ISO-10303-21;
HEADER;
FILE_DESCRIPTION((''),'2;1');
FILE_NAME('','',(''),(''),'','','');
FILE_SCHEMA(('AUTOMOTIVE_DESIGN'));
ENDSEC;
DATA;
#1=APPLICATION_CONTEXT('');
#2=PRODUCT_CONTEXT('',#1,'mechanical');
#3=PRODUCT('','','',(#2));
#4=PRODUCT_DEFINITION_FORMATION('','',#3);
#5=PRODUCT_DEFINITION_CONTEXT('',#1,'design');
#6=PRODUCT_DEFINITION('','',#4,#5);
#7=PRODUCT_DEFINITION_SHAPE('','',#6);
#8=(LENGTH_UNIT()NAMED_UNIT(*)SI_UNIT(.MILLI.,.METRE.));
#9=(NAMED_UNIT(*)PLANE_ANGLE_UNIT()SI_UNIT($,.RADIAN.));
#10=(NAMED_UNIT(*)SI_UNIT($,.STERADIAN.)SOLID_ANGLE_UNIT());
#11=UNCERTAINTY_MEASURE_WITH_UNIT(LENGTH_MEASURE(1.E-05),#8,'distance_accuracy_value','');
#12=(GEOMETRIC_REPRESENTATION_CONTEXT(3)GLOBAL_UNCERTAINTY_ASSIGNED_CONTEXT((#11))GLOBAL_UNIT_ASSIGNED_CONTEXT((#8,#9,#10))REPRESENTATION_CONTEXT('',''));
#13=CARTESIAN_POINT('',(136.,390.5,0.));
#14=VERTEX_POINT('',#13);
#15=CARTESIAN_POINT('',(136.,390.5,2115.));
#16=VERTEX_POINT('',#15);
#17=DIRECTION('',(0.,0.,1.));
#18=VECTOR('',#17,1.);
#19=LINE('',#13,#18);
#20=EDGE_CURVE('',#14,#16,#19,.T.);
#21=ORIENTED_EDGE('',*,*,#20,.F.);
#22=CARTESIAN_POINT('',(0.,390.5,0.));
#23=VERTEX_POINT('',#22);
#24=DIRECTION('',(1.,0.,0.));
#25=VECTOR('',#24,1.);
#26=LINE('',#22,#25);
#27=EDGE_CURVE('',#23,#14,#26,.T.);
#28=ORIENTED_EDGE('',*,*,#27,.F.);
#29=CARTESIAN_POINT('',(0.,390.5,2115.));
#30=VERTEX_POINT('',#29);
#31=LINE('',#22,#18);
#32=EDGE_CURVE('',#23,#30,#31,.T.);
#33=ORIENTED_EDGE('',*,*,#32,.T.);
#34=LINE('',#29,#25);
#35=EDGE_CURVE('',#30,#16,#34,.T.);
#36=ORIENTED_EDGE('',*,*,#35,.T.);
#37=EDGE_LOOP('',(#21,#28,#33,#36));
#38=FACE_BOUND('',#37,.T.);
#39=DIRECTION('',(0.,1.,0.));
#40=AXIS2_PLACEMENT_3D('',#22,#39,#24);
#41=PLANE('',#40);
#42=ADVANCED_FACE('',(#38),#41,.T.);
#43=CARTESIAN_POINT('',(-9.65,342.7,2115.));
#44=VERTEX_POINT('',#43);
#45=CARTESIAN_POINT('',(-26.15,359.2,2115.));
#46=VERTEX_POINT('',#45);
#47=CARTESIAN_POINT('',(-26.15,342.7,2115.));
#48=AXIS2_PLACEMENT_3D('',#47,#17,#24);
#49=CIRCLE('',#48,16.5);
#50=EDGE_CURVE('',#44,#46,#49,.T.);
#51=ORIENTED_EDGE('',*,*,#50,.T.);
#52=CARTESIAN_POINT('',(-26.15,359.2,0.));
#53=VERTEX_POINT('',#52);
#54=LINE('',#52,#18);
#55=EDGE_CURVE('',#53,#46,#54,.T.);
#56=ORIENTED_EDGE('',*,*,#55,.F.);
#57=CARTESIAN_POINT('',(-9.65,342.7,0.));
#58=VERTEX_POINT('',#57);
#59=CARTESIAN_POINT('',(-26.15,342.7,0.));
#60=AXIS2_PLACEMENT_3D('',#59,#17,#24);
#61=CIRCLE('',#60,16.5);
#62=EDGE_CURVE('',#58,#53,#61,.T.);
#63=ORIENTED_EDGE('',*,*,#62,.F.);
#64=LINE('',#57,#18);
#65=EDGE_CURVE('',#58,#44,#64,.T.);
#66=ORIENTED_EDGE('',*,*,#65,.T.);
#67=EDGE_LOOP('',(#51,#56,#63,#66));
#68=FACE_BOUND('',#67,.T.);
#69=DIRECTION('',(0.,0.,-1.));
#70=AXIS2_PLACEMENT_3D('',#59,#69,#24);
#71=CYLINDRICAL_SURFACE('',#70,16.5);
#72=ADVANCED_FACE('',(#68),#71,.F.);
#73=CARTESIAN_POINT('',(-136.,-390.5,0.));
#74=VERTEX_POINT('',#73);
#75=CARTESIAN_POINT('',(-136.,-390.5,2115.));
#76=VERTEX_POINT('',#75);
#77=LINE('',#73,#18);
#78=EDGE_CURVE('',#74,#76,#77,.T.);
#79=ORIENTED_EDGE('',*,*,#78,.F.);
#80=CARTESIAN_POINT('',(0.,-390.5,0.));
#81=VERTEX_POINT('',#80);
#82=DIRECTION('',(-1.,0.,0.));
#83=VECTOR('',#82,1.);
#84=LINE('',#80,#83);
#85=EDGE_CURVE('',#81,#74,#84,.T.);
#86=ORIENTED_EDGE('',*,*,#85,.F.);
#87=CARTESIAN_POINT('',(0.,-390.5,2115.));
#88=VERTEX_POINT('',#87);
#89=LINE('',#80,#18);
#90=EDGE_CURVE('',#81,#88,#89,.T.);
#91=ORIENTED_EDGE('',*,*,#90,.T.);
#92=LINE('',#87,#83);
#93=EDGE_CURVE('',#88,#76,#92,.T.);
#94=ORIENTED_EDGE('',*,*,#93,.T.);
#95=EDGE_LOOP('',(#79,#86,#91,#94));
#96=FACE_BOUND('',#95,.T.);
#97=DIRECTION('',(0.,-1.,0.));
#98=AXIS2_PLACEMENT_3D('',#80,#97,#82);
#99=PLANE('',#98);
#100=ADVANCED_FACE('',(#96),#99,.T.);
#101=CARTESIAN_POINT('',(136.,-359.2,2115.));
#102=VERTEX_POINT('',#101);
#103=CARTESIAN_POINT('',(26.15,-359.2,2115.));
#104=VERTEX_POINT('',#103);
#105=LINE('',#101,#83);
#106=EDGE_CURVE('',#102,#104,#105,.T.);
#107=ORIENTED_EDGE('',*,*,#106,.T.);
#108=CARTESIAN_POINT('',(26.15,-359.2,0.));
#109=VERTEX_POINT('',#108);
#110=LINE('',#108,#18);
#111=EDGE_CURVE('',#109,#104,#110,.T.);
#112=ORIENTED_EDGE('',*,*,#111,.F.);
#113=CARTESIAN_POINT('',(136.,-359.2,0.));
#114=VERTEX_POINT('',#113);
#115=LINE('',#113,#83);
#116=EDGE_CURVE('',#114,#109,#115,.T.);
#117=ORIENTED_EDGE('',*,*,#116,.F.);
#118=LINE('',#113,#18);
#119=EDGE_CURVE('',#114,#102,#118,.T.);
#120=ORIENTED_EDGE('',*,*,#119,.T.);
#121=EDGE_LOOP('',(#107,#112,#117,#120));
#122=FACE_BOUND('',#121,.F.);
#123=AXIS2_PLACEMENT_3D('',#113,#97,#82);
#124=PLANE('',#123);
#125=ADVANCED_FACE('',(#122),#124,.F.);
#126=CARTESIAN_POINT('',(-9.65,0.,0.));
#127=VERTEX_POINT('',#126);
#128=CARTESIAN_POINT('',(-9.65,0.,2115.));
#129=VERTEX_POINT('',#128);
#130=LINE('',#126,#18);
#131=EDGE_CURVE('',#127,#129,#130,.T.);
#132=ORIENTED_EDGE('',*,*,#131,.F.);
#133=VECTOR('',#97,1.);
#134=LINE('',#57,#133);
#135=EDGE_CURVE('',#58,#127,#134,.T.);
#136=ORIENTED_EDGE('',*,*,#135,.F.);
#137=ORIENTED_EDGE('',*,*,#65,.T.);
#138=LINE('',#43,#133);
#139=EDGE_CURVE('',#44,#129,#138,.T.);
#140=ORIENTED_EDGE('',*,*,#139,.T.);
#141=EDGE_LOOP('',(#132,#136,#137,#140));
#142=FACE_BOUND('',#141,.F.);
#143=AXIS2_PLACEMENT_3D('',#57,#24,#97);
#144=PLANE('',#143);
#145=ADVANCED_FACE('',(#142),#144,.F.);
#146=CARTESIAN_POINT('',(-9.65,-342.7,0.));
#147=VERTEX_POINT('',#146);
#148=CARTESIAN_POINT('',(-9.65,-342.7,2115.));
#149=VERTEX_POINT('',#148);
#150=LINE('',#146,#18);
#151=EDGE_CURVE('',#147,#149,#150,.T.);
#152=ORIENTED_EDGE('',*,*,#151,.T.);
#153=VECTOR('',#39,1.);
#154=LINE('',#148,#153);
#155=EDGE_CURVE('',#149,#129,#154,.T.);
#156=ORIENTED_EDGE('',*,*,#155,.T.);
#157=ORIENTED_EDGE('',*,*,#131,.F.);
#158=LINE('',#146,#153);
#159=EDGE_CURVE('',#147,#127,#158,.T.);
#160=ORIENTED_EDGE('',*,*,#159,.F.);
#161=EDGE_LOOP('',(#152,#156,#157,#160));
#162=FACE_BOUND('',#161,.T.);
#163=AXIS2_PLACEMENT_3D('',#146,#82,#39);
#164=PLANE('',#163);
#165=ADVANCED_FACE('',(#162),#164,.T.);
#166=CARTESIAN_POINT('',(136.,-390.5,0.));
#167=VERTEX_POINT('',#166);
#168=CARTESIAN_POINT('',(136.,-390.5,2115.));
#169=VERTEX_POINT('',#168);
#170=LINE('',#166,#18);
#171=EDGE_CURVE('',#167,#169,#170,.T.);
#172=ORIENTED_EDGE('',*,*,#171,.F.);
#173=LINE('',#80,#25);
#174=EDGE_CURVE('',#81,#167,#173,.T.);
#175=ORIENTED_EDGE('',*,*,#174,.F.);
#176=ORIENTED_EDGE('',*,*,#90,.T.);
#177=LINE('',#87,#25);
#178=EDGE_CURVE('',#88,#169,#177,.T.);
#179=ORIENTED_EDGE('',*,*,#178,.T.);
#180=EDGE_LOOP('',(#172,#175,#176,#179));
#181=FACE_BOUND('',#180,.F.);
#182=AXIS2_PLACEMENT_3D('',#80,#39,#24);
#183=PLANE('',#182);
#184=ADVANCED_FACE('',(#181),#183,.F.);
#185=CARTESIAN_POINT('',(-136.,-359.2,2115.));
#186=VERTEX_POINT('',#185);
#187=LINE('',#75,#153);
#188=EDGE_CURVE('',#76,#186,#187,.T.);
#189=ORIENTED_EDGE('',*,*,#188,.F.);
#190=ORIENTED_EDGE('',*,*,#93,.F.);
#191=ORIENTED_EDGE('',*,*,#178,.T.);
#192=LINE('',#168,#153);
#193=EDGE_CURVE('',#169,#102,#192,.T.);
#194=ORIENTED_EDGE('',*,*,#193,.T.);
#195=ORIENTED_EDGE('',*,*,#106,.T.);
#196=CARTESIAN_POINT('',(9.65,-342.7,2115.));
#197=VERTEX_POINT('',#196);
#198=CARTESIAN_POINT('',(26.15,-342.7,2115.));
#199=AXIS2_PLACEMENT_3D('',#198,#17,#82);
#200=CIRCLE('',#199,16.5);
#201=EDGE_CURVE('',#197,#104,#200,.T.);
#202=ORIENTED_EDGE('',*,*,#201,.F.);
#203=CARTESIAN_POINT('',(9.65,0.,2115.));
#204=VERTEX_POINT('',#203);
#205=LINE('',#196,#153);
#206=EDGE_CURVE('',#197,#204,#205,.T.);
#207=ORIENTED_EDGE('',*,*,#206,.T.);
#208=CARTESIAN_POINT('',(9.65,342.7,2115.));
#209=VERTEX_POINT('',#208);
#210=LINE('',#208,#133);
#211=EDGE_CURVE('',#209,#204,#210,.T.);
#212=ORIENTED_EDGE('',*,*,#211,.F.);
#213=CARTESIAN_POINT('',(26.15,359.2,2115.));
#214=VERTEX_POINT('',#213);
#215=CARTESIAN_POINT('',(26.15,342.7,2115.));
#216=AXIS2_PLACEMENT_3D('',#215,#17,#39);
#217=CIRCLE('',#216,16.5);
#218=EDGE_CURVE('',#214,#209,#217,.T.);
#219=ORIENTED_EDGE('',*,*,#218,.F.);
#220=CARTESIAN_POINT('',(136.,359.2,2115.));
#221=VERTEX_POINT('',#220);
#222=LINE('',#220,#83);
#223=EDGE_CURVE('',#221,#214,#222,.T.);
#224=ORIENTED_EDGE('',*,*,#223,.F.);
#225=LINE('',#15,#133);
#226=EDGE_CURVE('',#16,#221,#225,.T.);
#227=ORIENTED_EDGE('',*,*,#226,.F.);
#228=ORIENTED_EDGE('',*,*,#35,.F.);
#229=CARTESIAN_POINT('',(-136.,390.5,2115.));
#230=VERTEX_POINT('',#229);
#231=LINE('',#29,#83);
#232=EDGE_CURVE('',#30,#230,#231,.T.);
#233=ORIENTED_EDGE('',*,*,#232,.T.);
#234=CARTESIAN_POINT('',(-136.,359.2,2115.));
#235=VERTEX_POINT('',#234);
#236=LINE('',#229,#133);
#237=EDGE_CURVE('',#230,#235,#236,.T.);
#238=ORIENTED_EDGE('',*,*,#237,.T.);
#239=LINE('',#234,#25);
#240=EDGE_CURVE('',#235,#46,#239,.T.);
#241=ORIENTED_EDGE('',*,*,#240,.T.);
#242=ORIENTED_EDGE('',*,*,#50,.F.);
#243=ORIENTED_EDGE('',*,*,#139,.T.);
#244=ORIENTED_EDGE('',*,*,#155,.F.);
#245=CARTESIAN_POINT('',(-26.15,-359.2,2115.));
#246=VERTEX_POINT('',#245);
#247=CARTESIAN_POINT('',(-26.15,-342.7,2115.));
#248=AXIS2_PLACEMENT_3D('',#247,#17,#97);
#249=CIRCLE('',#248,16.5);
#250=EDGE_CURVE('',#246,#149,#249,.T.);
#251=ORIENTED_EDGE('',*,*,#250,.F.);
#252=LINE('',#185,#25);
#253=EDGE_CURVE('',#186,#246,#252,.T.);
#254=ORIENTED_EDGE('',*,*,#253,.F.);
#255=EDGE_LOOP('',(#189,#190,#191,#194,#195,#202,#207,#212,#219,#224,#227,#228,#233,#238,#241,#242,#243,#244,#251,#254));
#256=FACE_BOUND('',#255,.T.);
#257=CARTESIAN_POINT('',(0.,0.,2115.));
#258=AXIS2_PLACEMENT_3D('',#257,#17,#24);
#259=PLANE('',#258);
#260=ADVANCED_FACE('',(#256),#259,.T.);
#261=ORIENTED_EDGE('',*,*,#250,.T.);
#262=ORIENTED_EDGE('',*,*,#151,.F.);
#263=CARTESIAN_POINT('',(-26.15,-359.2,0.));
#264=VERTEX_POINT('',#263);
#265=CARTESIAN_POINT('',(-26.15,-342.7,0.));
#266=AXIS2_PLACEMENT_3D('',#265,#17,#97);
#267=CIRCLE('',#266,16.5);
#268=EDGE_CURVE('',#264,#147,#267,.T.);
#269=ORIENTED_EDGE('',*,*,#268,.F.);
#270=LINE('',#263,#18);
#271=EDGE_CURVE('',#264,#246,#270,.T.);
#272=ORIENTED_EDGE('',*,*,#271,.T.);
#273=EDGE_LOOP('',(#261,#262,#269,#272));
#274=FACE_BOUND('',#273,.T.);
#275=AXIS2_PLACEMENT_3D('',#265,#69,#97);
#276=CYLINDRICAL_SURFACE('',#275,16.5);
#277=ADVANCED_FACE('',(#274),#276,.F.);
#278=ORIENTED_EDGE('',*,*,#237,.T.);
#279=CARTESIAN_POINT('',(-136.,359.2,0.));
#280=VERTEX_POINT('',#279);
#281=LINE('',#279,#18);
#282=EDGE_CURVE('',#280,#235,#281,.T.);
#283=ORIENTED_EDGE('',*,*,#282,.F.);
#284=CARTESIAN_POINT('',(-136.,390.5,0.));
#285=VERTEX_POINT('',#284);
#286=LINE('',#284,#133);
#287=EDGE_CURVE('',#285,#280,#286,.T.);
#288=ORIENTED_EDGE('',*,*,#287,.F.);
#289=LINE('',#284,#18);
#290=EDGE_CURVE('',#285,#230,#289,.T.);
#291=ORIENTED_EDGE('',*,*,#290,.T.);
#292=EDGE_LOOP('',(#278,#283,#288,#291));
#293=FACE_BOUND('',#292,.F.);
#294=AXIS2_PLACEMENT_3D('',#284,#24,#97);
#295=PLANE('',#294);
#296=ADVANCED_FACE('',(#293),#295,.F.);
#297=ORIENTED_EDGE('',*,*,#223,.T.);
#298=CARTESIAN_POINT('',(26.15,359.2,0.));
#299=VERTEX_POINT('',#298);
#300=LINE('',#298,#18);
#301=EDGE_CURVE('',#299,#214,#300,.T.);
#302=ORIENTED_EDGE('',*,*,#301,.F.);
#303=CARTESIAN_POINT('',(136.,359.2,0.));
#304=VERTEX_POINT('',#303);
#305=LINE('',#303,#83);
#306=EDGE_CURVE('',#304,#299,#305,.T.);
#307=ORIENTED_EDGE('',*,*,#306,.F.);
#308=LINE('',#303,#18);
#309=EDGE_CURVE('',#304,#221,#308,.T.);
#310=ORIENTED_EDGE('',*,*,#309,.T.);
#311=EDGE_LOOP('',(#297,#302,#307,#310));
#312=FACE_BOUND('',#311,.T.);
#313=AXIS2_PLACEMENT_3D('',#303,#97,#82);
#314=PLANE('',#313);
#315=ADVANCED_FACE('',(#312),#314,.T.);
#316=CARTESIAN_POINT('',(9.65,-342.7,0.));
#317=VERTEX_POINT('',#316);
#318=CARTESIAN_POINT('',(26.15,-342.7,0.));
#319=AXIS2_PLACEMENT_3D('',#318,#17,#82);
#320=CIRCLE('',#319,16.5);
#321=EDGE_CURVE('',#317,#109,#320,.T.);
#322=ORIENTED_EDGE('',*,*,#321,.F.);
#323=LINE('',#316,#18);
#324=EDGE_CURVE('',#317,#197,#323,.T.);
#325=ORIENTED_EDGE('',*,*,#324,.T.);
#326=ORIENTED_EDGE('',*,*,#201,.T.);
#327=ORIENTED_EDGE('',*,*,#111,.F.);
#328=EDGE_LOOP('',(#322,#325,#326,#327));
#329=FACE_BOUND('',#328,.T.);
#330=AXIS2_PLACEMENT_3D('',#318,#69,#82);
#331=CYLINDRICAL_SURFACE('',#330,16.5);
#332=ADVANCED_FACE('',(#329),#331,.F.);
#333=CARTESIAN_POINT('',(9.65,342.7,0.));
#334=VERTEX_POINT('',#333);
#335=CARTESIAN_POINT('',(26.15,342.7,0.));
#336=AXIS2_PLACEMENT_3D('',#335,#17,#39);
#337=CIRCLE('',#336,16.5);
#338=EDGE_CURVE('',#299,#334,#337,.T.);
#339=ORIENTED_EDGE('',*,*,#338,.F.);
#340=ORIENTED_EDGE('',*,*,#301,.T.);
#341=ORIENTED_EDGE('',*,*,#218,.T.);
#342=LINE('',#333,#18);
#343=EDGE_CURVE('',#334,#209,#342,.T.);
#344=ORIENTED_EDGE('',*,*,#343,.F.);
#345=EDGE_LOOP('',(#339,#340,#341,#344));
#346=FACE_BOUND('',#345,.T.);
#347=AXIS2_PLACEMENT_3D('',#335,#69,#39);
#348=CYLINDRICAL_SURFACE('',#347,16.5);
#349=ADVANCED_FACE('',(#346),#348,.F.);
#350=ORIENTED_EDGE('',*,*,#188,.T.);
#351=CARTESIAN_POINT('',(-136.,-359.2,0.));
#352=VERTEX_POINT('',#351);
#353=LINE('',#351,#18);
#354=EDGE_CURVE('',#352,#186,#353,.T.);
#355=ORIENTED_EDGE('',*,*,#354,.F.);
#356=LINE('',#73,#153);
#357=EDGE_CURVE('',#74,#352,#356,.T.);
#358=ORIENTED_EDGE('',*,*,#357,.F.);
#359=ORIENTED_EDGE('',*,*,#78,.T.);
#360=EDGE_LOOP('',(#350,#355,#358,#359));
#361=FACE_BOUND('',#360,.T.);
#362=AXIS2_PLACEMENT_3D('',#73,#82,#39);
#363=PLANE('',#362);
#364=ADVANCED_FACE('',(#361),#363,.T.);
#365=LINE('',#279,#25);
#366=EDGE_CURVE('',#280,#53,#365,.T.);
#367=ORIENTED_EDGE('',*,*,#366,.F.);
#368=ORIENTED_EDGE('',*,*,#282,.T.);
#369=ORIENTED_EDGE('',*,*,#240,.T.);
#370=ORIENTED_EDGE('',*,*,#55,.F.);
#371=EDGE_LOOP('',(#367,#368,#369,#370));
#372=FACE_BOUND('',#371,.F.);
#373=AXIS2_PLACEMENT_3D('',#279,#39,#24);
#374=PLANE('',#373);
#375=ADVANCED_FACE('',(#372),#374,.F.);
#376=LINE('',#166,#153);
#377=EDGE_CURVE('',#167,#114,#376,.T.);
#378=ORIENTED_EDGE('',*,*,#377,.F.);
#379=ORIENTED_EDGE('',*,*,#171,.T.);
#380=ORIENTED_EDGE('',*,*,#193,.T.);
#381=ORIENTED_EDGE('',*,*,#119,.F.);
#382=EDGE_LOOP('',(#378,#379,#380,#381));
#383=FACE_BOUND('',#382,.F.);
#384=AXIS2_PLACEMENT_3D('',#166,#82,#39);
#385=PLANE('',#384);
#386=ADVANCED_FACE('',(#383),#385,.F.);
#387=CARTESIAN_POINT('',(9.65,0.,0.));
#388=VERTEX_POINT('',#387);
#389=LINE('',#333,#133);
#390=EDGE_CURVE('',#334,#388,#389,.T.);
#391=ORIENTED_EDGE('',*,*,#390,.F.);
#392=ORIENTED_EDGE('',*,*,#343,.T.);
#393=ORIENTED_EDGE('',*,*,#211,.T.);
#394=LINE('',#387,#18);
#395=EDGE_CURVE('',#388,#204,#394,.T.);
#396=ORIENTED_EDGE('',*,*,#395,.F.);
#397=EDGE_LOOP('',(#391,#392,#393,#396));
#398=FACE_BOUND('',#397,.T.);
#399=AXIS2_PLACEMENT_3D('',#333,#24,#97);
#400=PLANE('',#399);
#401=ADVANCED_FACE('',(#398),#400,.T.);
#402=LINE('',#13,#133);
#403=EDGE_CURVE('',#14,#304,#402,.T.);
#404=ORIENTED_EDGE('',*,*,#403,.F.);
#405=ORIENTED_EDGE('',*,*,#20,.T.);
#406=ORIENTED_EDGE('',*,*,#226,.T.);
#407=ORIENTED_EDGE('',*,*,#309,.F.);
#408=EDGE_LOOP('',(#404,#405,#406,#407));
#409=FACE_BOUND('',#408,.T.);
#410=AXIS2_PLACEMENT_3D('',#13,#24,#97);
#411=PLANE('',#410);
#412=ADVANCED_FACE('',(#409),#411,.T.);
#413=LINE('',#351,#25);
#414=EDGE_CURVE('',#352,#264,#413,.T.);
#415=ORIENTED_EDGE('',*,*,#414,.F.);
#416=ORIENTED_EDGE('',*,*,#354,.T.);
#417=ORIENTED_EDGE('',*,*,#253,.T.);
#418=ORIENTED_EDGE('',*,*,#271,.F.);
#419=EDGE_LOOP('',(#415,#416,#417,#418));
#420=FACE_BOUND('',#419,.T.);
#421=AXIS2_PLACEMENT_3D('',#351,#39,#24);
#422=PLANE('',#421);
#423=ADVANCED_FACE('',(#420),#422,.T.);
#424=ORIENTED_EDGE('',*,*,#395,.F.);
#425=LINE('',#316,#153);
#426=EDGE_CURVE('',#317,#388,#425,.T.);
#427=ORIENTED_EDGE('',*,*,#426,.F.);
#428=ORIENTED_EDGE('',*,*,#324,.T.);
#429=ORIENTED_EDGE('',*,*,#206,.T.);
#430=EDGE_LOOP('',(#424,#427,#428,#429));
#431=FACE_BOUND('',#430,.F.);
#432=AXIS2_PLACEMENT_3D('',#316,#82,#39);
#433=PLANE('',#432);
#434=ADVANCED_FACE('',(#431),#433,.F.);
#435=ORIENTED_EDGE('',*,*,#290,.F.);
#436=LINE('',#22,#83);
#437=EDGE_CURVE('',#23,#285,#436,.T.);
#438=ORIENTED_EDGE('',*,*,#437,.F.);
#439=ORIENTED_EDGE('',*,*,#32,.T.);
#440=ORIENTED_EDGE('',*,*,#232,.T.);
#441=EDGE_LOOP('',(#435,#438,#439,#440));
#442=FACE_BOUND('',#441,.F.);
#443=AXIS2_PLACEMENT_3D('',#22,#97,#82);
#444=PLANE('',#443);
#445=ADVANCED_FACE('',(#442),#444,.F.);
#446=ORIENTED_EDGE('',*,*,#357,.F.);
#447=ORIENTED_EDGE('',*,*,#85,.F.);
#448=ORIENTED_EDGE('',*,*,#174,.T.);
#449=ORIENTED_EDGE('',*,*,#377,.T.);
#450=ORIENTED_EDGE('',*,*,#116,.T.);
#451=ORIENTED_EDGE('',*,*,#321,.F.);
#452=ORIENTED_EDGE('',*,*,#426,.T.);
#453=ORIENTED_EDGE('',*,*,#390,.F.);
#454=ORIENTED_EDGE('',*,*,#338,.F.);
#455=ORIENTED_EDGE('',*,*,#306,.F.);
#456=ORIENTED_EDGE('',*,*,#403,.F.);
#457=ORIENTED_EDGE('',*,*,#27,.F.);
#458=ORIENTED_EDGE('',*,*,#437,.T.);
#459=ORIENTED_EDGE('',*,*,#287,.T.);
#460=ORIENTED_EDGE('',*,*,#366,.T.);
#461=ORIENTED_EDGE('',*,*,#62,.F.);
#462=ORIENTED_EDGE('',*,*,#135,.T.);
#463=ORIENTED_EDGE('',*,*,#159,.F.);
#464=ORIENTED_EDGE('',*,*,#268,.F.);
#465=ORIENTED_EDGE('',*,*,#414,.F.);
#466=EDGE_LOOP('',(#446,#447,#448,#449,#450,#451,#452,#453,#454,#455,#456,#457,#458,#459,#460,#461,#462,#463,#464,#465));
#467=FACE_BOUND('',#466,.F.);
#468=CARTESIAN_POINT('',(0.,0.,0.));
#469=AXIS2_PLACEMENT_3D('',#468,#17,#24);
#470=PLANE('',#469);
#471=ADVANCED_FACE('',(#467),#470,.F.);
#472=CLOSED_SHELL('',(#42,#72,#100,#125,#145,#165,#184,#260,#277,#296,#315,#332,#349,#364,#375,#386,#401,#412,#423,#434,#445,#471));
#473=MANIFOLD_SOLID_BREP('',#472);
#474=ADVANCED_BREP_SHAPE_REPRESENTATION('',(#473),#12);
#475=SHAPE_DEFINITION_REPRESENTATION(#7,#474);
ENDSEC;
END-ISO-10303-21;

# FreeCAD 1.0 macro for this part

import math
import FreeCAD as App
import Part
import Sketcher

V = App.Vector

doc = App.newDocument("Part")
body = doc.addObject("PartDesign::Body", "Body")

# Sketch on XY plane
sketch1 = body.newObject("Sketcher::SketchObject", "Sketch")
sketch1.AttachmentSupport = (doc.getObject("XY_Plane"), [""])
sketch1.MapMode = "FlatFace"
sketch1.addGeometry(Part.LineSegment(V(-136, -359, 0), V(-136, -390, 0)), False)
sketch1.addGeometry(Part.LineSegment(V(-136, -390, 0), V(136, -390, 0)), False)
sketch1.addGeometry(Part.LineSegment(V(136, -390, 0), V(136, -359, 0)), False)
sketch1.addGeometry(Part.LineSegment(V(136, -359, 0), V(26, -359, 0)), False)
sketch1.addGeometry(Part.ArcOfCircle(Part.Circle(V(26, -343, 0), V(0, 0, 1), 16), math.radians(180), math.radians(270)), False)
sketch1.addGeometry(Part.LineSegment(V(10, -343, 0), V(10, 343, 0)), False)
sketch1.addGeometry(Part.ArcOfCircle(Part.Circle(V(26, 343, 0), V(0, 0, 1), 16), math.radians(90), math.radians(180)), False)
sketch1.addGeometry(Part.LineSegment(V(26, 359, 0), V(136, 359, 0)), False)
sketch1.addGeometry(Part.LineSegment(V(136, 359, 0), V(136, 390, 0)), False)
sketch1.addGeometry(Part.LineSegment(V(136, 390, 0), V(-136, 390, 0)), False)
sketch1.addGeometry(Part.LineSegment(V(-136, 390, 0), V(-136, 359, 0)), False)
sketch1.addGeometry(Part.LineSegment(V(-136, 359, 0), V(-26, 359, 0)), False)
sketch1.addGeometry(Part.ArcOfCircle(Part.Circle(V(-26, 343, 0), V(0, 0, 1), 16), math.radians(0), math.radians(90)), False)
sketch1.addGeometry(Part.LineSegment(V(-10, 343, 0), V(-10, -343, 0)), False)
sketch1.addGeometry(Part.ArcOfCircle(Part.Circle(V(-26, -343, 0), V(0, 0, 1), 16), math.radians(-90), math.radians(0)), False)
sketch1.addGeometry(Part.LineSegment(V(-26, -359, 0), V(-136, -359, 0)), False)
sketch1.addConstraint(Sketcher.Constraint("Coincident", 0, 2, 1, 1))
sketch1.addConstraint(Sketcher.Constraint("Coincident", 1, 2, 2, 1))
sketch1.addConstraint(Sketcher.Constraint("Coincident", 2, 2, 3, 1))
sketch1.addConstraint(Sketcher.Constraint("Tangent", 3, 2, 4, 2))
sketch1.addConstraint(Sketcher.Constraint("Tangent", 4, 1, 5, 1))
sketch1.addConstraint(Sketcher.Constraint("Tangent", 5, 2, 6, 2))
sketch1.addConstraint(Sketcher.Constraint("Tangent", 6, 1, 7, 1))
sketch1.addConstraint(Sketcher.Constraint("Coincident", 7, 2, 8, 1))
sketch1.addConstraint(Sketcher.Constraint("Coincident", 8, 2, 9, 1))
sketch1.addConstraint(Sketcher.Constraint("Coincident", 9, 2, 10, 1))
sketch1.addConstraint(Sketcher.Constraint("Coincident", 10, 2, 11, 1))
sketch1.addConstraint(Sketcher.Constraint("Tangent", 11, 2, 12, 2))
sketch1.addConstraint(Sketcher.Constraint("Tangent", 12, 1, 13, 1))
sketch1.addConstraint(Sketcher.Constraint("Tangent", 13, 2, 14, 2))
sketch1.addConstraint(Sketcher.Constraint("Tangent", 14, 1, 15, 1))
sketch1.addConstraint(Sketcher.Constraint("Coincident", 15, 2, 0, 1))
sketch1.addConstraint(Sketcher.Constraint("Vertical", 0))
sketch1.addConstraint(Sketcher.Constraint("Horizontal", 1))
sketch1.addConstraint(Sketcher.Constraint("Vertical", 2))
sketch1.addConstraint(Sketcher.Constraint("Horizontal", 3))
sketch1.addConstraint(Sketcher.Constraint("Vertical", 5))
sketch1.addConstraint(Sketcher.Constraint("Horizontal", 7))
sketch1.addConstraint(Sketcher.Constraint("Vertical", 8))
sketch1.addConstraint(Sketcher.Constraint("Horizontal", 9))
sketch1.addConstraint(Sketcher.Constraint("Vertical", 10))
sketch1.addConstraint(Sketcher.Constraint("Horizontal", 11))
sketch1.addConstraint(Sketcher.Constraint("Vertical", 13))
sketch1.addConstraint(Sketcher.Constraint("Horizontal", 15))
sketch1.addConstraint(Sketcher.Constraint("Equal", 4, 6))
sketch1.addConstraint(Sketcher.Constraint("Equal", 6, 12))
sketch1.addConstraint(Sketcher.Constraint("Equal", 12, 14))
sketch1.addConstraint(Sketcher.Constraint("Symmetric", 4, 3, 12, 3, -1, 1))
sketch1.addConstraint(Sketcher.Constraint("Symmetric", 0, 2, 8, 2, -1, 1))
sketch1.addConstraint(Sketcher.Constraint("Symmetric", 7, 2, 10, 2, -2))
sketch1.addConstraint(Sketcher.Constraint("Symmetric", 2, 2, 15, 2, -2))
sketch1.addConstraint(Sketcher.Constraint("Radius", 4, 16.5))
sketch1.addConstraint(Sketcher.Constraint("DistanceY", 0, 2, 0, 1, 31.3))
sketch1.addConstraint(Sketcher.Constraint("DistanceX", 0, 2, -1, 1, 136.0))
sketch1.addConstraint(Sketcher.Constraint("DistanceY", 0, 2, -1, 1, 390.5))
sketch1.addConstraint(Sketcher.Constraint("DistanceX", -1, 1, 4, 1, 9.65))
pad1 = body.newObject("PartDesign::Pad", "Pad")
pad1.Profile = sketch1
pad1.Length = 2115

doc.recompute()
